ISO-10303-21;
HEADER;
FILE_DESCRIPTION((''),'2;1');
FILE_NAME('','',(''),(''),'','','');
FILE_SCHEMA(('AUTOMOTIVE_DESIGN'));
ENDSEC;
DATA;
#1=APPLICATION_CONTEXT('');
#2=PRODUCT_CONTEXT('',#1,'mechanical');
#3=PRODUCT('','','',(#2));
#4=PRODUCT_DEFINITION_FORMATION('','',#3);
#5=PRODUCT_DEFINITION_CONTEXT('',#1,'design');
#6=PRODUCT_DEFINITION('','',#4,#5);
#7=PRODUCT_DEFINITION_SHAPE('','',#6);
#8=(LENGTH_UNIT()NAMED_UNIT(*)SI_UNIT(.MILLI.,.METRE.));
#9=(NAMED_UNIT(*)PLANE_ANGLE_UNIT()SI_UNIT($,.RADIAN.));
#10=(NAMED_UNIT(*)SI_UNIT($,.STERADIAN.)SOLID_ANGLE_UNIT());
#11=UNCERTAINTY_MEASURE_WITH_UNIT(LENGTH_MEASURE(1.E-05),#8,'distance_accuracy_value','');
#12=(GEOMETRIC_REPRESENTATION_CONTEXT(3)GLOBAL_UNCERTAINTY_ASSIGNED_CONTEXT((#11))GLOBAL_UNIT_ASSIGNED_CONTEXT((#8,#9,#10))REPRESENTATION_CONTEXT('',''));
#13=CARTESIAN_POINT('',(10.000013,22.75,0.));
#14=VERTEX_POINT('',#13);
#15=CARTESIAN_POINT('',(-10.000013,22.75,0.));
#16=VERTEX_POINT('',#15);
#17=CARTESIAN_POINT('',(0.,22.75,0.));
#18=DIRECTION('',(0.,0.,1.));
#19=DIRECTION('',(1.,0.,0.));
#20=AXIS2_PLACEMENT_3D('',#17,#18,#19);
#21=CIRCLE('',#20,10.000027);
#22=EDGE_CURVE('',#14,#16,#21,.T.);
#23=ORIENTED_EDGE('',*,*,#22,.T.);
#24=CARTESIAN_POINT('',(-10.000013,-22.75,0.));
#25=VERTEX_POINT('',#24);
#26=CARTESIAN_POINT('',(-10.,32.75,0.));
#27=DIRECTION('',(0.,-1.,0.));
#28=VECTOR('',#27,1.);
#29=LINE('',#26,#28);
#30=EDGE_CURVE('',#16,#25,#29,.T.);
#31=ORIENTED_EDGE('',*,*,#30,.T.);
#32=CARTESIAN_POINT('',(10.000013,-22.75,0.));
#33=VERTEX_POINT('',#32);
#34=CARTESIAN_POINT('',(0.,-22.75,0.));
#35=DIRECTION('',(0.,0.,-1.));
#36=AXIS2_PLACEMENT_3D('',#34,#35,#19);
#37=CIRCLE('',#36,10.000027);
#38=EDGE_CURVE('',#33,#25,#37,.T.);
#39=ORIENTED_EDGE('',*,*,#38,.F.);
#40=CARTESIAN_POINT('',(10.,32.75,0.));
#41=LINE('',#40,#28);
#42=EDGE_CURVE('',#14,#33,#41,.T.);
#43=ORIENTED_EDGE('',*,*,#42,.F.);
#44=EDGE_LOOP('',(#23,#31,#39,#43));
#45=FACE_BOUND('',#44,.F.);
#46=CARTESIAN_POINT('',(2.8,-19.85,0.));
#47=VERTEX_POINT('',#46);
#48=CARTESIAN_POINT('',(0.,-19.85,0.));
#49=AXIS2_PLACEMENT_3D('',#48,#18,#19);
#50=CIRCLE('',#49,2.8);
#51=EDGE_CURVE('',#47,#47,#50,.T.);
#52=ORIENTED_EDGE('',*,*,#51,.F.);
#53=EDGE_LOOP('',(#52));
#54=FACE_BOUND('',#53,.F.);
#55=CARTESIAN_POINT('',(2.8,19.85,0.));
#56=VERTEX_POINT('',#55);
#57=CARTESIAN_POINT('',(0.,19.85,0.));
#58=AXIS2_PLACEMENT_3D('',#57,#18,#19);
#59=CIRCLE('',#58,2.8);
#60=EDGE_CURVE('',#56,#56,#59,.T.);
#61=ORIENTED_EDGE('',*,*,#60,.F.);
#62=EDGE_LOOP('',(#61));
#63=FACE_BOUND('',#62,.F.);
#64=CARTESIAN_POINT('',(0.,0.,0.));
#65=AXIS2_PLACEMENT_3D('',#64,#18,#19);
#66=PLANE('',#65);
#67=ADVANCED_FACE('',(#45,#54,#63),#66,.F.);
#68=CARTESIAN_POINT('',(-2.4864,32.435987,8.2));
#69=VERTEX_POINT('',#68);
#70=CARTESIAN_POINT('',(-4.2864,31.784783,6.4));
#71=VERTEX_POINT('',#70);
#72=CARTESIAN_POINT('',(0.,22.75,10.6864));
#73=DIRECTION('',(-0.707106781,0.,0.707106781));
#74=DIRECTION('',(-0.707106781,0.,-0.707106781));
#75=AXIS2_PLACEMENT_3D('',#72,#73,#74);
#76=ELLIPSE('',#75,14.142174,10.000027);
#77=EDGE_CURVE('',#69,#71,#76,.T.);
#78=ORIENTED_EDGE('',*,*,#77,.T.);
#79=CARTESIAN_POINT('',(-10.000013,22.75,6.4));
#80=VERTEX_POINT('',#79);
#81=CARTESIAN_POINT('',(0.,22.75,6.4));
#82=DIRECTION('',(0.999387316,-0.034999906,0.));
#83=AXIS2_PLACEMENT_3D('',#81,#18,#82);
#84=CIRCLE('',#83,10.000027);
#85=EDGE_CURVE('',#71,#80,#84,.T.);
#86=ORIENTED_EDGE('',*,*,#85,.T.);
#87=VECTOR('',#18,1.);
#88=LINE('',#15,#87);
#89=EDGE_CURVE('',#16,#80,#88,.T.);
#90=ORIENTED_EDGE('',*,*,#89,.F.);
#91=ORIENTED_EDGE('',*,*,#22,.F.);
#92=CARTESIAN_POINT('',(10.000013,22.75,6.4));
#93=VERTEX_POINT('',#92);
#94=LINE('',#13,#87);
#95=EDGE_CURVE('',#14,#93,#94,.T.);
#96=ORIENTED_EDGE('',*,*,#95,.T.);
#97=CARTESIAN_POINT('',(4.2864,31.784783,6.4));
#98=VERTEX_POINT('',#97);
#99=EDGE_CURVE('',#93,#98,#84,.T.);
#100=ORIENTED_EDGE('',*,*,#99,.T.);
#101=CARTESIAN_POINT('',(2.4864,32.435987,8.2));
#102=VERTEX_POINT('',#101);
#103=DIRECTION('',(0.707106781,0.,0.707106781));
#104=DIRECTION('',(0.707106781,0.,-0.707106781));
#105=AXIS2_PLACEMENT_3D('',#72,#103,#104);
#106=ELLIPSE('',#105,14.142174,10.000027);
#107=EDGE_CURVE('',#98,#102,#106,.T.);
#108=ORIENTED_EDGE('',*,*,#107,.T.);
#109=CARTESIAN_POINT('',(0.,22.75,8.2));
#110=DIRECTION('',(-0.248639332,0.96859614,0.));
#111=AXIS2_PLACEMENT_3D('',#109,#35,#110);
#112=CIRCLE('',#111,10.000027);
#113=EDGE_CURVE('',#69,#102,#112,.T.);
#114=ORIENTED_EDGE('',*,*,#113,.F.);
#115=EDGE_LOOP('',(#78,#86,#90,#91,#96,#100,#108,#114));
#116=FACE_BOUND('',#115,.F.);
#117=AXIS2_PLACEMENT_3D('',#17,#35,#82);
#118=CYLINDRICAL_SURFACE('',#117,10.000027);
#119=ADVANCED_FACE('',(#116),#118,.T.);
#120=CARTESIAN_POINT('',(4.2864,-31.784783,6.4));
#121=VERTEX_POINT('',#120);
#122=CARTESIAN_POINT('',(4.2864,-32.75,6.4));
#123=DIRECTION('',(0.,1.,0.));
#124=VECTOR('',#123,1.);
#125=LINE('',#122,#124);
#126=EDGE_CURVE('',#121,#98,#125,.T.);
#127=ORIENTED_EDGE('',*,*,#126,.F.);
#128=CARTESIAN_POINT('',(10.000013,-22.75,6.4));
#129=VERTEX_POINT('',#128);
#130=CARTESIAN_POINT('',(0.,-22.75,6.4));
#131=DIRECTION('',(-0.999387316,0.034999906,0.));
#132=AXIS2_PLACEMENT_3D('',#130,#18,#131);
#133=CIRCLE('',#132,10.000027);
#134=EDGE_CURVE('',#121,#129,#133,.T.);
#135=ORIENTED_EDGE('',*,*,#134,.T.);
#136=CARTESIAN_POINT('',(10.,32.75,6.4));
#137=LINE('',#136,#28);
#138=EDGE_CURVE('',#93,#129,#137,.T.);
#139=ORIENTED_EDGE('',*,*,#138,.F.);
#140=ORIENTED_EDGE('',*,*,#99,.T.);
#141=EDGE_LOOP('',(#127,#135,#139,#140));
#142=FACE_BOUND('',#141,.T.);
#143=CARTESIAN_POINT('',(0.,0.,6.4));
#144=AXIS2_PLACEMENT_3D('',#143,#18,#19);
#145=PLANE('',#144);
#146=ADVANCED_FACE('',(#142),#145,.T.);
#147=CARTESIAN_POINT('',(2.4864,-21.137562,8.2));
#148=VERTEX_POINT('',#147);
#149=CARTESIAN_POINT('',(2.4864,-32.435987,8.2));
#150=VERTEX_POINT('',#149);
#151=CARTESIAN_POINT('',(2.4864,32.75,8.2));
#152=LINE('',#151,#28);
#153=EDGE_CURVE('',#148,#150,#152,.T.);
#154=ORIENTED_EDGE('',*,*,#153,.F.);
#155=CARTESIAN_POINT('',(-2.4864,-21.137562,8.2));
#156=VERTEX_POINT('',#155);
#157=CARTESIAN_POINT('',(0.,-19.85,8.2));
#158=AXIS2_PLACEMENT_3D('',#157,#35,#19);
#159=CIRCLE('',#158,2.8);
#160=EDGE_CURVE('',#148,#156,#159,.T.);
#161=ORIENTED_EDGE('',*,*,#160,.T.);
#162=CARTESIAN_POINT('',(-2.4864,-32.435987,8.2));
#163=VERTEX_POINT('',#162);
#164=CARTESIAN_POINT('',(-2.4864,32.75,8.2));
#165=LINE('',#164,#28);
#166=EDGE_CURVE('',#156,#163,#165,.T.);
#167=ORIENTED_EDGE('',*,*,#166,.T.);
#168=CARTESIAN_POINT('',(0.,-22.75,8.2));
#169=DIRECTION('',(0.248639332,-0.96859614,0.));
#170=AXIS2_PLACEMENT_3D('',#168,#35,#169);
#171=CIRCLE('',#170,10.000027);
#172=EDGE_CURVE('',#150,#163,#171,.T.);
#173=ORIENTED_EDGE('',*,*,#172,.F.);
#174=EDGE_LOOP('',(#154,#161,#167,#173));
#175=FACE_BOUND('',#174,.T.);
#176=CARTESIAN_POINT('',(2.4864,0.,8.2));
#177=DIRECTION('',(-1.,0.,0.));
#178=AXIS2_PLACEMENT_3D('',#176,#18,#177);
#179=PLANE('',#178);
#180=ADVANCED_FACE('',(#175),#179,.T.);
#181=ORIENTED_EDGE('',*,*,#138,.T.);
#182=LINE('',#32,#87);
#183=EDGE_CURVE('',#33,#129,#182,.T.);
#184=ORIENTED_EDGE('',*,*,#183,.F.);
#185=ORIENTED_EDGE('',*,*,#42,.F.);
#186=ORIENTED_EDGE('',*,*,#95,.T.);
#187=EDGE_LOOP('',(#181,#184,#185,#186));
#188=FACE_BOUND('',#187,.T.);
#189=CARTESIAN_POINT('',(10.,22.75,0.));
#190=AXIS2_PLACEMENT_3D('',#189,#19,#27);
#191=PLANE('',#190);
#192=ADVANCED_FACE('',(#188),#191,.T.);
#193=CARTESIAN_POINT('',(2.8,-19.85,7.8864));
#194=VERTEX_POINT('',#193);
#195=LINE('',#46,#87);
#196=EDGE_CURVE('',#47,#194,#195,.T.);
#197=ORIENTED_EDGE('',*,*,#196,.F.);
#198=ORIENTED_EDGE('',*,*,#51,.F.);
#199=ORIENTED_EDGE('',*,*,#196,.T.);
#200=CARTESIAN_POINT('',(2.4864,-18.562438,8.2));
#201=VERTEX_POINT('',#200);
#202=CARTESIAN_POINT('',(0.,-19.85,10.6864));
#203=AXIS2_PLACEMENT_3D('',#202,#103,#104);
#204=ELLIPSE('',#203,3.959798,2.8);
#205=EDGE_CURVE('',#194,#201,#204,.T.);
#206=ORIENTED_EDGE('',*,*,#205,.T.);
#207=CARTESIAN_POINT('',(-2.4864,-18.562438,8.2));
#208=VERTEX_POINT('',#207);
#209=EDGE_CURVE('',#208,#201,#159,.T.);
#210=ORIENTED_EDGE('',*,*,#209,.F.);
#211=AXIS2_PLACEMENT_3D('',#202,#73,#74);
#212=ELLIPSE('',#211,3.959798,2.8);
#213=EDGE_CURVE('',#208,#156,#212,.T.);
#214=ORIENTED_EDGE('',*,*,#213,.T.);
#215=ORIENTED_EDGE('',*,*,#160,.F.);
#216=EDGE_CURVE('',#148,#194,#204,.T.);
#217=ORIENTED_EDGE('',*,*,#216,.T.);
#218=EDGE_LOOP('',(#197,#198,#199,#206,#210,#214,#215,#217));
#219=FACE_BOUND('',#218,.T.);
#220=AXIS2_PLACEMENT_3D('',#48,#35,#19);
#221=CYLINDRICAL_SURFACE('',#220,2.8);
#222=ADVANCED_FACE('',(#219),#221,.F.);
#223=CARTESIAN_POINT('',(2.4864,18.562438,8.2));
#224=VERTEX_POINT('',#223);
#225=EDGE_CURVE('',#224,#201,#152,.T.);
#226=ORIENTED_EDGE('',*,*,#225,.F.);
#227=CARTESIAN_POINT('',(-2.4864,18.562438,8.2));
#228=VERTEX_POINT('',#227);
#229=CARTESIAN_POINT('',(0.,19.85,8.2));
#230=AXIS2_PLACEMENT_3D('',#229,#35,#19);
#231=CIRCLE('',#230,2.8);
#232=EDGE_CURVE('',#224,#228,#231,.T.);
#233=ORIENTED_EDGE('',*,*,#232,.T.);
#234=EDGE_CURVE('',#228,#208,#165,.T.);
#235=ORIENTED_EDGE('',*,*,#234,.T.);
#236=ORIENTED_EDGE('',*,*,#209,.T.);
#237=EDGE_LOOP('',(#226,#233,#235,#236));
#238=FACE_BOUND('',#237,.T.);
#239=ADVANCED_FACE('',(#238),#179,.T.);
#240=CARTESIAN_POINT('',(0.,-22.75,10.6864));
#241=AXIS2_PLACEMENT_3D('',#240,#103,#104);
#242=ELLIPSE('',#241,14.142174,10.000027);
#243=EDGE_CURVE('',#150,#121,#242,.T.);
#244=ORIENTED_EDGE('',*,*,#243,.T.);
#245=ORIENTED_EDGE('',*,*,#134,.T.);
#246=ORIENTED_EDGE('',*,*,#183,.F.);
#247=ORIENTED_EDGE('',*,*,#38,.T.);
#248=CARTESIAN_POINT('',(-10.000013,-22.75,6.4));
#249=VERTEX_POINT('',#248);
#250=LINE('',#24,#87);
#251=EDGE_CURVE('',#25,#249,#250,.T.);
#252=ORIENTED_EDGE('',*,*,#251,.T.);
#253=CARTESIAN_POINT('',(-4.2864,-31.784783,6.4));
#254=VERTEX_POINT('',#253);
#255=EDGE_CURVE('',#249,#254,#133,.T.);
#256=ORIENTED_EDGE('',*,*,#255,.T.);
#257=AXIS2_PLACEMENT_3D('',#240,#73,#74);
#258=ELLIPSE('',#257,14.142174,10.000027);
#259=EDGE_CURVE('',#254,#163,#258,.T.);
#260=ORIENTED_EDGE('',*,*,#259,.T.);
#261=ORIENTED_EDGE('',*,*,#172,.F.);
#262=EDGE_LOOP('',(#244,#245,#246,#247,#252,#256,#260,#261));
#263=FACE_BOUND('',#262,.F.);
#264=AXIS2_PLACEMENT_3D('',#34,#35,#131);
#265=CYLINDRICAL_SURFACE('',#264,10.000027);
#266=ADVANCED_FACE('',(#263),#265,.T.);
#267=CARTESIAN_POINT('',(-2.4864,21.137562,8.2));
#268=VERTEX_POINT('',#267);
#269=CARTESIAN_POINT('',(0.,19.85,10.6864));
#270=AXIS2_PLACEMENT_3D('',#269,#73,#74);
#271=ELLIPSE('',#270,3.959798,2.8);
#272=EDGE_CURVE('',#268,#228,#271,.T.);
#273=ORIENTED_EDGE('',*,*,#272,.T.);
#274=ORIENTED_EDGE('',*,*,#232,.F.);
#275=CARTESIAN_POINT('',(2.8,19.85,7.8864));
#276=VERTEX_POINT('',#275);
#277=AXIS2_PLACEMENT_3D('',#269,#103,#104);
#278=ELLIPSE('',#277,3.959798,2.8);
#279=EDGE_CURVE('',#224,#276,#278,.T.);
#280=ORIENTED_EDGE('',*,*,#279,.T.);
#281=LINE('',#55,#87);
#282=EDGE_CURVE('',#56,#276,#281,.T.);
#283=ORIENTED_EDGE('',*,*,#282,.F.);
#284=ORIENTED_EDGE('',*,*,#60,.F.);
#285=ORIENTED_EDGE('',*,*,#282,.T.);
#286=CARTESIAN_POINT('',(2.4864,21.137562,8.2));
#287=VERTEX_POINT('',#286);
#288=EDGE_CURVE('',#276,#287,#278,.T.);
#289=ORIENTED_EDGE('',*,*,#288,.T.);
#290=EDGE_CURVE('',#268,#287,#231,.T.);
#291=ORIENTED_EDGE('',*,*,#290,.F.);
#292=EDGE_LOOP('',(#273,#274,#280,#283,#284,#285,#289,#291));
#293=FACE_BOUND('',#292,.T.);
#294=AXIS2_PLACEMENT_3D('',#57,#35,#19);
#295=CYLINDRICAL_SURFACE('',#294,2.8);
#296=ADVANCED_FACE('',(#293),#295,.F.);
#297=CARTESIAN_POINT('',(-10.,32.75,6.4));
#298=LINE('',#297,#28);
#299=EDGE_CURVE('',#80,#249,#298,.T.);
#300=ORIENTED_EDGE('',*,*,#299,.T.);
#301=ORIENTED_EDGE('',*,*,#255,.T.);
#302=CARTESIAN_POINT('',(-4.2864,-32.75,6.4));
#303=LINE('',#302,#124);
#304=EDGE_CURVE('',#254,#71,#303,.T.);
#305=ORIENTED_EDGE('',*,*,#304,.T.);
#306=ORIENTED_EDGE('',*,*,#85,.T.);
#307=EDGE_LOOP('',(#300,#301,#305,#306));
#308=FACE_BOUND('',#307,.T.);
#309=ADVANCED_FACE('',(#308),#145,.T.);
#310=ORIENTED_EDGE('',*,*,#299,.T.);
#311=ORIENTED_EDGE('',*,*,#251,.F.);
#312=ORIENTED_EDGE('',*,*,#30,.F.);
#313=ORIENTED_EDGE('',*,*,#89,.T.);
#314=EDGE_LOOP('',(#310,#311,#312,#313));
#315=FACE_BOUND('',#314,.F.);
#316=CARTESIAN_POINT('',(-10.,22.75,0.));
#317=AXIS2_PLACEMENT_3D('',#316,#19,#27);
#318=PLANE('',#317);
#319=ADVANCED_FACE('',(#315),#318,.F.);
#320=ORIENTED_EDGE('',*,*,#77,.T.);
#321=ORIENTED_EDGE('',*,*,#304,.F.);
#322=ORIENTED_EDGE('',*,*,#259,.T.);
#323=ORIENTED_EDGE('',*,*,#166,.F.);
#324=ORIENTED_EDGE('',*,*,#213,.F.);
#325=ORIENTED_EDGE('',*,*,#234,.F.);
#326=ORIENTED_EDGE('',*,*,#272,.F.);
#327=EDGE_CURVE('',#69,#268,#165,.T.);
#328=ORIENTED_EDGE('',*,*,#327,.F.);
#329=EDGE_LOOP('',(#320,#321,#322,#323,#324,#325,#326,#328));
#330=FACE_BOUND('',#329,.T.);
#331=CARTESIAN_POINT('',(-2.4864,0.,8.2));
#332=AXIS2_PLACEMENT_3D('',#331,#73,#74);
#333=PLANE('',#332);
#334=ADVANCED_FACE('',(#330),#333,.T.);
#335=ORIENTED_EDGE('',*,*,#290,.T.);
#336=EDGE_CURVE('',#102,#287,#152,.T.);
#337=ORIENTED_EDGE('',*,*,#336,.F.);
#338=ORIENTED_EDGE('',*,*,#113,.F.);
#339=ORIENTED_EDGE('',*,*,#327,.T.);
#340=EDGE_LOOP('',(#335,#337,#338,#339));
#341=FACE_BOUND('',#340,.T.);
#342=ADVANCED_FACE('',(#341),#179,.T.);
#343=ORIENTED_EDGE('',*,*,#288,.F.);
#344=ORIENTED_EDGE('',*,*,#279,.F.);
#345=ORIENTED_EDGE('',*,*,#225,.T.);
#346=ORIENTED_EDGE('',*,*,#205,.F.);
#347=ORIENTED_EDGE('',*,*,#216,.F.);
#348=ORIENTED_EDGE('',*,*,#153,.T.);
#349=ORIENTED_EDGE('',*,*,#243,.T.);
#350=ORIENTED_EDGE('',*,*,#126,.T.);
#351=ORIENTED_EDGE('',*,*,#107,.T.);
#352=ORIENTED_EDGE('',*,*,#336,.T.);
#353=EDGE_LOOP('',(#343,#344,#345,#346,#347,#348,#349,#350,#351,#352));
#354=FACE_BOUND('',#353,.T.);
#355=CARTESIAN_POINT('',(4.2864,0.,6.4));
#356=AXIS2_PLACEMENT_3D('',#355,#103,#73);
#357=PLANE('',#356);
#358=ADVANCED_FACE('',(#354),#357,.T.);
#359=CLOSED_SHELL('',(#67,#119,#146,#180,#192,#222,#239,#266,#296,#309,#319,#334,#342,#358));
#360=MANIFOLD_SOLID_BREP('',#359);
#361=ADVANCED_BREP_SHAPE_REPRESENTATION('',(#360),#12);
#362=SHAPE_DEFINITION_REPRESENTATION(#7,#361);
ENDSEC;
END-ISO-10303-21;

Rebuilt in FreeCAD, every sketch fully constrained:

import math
import FreeCAD as App
import Part
import Sketcher
from FreeCAD import Vector
Q = App.Units.Quantity


def add_polygon(sketch, points):
    """Adds a closed chain of lines whose ends are joined by coincident constraints."""
    first, n = sketch.GeometryCount, len(points)
    for a, b in zip(points, points[1:] + points[:1]):
        sketch.addGeometry(Part.LineSegment(App.Vector(*a, 0), App.Vector(*b, 0)), False)
    for i in range(n):
        sketch.addConstraint(Sketcher.Constraint("Coincident", first + i, 2, first + (i + 1) % n, 1))

doc = App.newDocument("Part")
body = doc.addObject("PartDesign::Body", "Body")

# Sketch on XY plane
sketch1 = body.newObject("Sketcher::SketchObject", "Sketch")
sketch1.AttachmentSupport = (doc.getObject("XY_Plane"), [""])
sketch1.MapMode = "FlatFace"
sketch1.addGeometry([
    Part.ArcOfCircle(Part.Circle(Vector(0, 22.8, 0), Vector(0, 0, 1), 10), math.radians(0), math.radians(180)),  # 0
    Part.LineSegment(Vector(-10, 22.8, 0), Vector(-10, -22.8, 0)),  # 1
    Part.ArcOfCircle(Part.Circle(Vector(0, -22.8, 0), Vector(0, 0, 1), 10), math.radians(180), math.radians(360)),  # 2
    Part.LineSegment(Vector(10, -22.8, 0), Vector(10, 22.8, 0)),  # 3
    Part.Circle(Vector(0, -19.9, 0), Vector(0, 0, 1), 2.8),  # 4
    Part.Circle(Vector(0, 19.9, 0), Vector(0, 0, 1), 2.8),  # 5
], False)
sketch1.addConstraint([
    Sketcher.Constraint("Tangent", 0, 2, 1, 1),
    Sketcher.Constraint("Tangent", 1, 2, 2, 1),
    Sketcher.Constraint("Tangent", 2, 2, 3, 1),
    Sketcher.Constraint("Tangent", 3, 2, 0, 1),
    Sketcher.Constraint("Vertical", 1),
    Sketcher.Constraint("Vertical", 3),
    Sketcher.Constraint("Equal", 4, 5),
    Sketcher.Constraint("Symmetric", 0, 3, 2, 3, -1, 1),
    Sketcher.Constraint("Symmetric", 4, 3, 5, 3, -1, 1),
    Sketcher.Constraint("PointOnObject", 4, 3, -2),
    Sketcher.Constraint("Diameter", 4, Q("5.6 mm")),
    Sketcher.Constraint("Radius", 0, Q("10 mm")),
    Sketcher.Constraint("DistanceY", 1, 2, 1, 1, Q("45.5 mm")),
    Sketcher.Constraint("DistanceY", 2, 3, 4, 3, Q("2.9 mm")),
])
pad1 = body.newObject("PartDesign::Pad", "Pad")
pad1.Profile = sketch1
pad1.Length = 6.4

# Sketch on XZ plane
sketch2 = body.newObject("Sketcher::SketchObject", "Sketch001")
sketch2.AttachmentSupport = (doc.getObject("XZ_Plane"), [""])
sketch2.MapMode = "FlatFace"
add_polygon(sketch2, [(2.5, 8.2), (4.3, 6.4), (-4.3, 6.4), (-2.5, 8.2)])  # lines 0-3
sketch2.addConstraint([
    Sketcher.Constraint("Horizontal", 1),
    Sketcher.Constraint("Horizontal", 3),
    Sketcher.Constraint("Perpendicular", 0, 2),
    Sketcher.Constraint("Equal", 0, 2),
    Sketcher.Constraint("DistanceY", -1, 1, 0, 2, Q("6.4 mm")),
    Sketcher.Constraint("DistanceY", -1, 1, 2, 2, Q("8.2 mm")),
    Sketcher.Constraint("DistanceX", 1, 2, 1, 1, Q("8.5728 mm")),
    Sketcher.Constraint("DistanceX", -1, 1, 0, 2, Q("4.2864 mm")),
])
pad2 = body.newObject("PartDesign::Pad", "Pad001")
pad2.Profile = sketch2
pad2.Length = 65.5
pad2.Midplane = True

# Sketch on XY plane
sketch3 = body.newObject("Sketcher::SketchObject", "Sketch002")
sketch3.AttachmentSupport = (doc.getObject("XY_Plane"), [""])
sketch3.MapMode = "FlatFace"
sketch3.addGeometry([
    Part.Circle(Vector(0, -19.9, 0), Vector(0, 0, 1), 2.8),
    Part.Circle(Vector(0, 19.9, 0), Vector(0, 0, 1), 2.8),
], False)
sketch3.addConstraint([
    Sketcher.Constraint("Equal", 0, 1),
    Sketcher.Constraint("Symmetric", 0, 3, 1, 3, -1, 1),
    Sketcher.Constraint("PointOnObject", 0, 3, -2),
    Sketcher.Constraint("Diameter", 0, Q("5.6 mm")),
    Sketcher.Constraint("DistanceY", 0, 3, 1, 3, Q("39.7 mm")),
])
pocket1 = body.newObject("PartDesign::Pocket", "Pocket")
pocket1.Profile = sketch3
pocket1.Type = "ThroughAll"
pocket1.Reversed = True

# Sketch on XY plane
sketch4 = body.newObject("Sketcher::SketchObject", "Sketch003")
sketch4.AttachmentSupport = (doc.getObject("XY_Plane"), [""])
sketch4.MapMode = "FlatFace"
sketch4.addGeometry([
    Part.LineSegment(Vector(0, 33, 0), Vector(-10, 33, 0)),  # 0
    Part.LineSegment(Vector(-10, 33, 0), Vector(-10, 23, 0)),  # 1
    Part.ArcOfCircle(Part.Circle(Vector(0, 23, 0), Vector(0, 0, 1), 10), math.radians(90), math.radians(180)),  # 2
    Part.LineSegment(Vector(-10, -23, 0), Vector(-10, -33, 0)),  # 3
    Part.LineSegment(Vector(-10, -33, 0), Vector(0, -33, 0)),  # 4
    Part.ArcOfCircle(Part.Circle(Vector(0, -23, 0), Vector(0, 0, 1), 10), math.radians(180), math.radians(270)),  # 5
    Part.LineSegment(Vector(10, 33, 0), Vector(0, 33, 0)),  # 6
    Part.ArcOfCircle(Part.Circle(Vector(0, 23, 0), Vector(0, 0, 1), 10), math.radians(0), math.radians(90)),  # 7
    Part.LineSegment(Vector(10, 23, 0), Vector(10, 33, 0)),  # 8
    Part.ArcOfCircle(Part.Circle(Vector(0, -23, 0), Vector(0, 0, 1), 10), math.radians(-90), math.radians(0)),  # 9
    Part.LineSegment(Vector(0, -33, 0), Vector(10, -33, 0)),  # 10
    Part.LineSegment(Vector(10, -33, 0), Vector(10, -23, 0)),  # 11
], False)
sketch4.addConstraint([
    Sketcher.Constraint("Coincident", 0, 2, 1, 1),
    Sketcher.Constraint("Tangent", 1, 2, 2, 2),
    Sketcher.Constraint("Tangent", 2, 1, 0, 1),
    Sketcher.Constraint("Coincident", 3, 2, 4, 1),
    Sketcher.Constraint("Tangent", 4, 2, 5, 2),
    Sketcher.Constraint("Tangent", 5, 1, 3, 1),
    Sketcher.Constraint("Tangent", 6, 2, 7, 2),
    Sketcher.Constraint("Tangent", 7, 1, 8, 1),
    Sketcher.Constraint("Coincident", 8, 2, 6, 1),
    Sketcher.Constraint("Tangent", 9, 1, 10, 1),
    Sketcher.Constraint("Coincident", 10, 2, 11, 1),
    Sketcher.Constraint("Tangent", 11, 2, 9, 2),
    Sketcher.Constraint("Horizontal", 0),
    Sketcher.Constraint("Vertical", 1),
    Sketcher.Constraint("Vertical", 3),
    Sketcher.Constraint("Horizontal", 4),
    Sketcher.Constraint("Horizontal", 6),
    Sketcher.Constraint("Vertical", 8),
    Sketcher.Constraint("Horizontal", 10),
    Sketcher.Constraint("Vertical", 11),
    Sketcher.Constraint("Coincident", 7, 3, 2, 3),
    Sketcher.Constraint("Coincident", 9, 3, 5, 3),
    Sketcher.Constraint("Equal", 2, 5),
    Sketcher.Constraint("Equal", 5, 7),
    Sketcher.Constraint("Equal", 7, 9),
    Sketcher.Constraint("Symmetric", 2, 3, 5, 3, -1, 1),
    Sketcher.Constraint("PointOnObject", 2, 3, -2),
    Sketcher.Constraint("Radius", 2, Q("10 mm")),
    Sketcher.Constraint("DistanceY", 5, 3, 2, 3, Q("45.5 mm")),
])
pocket2 = body.newObject("PartDesign::Pocket", "Pocket001")
pocket2.Profile = sketch4
pocket2.Type = "ThroughAll"
pocket2.Reversed = True

doc.recompute()
